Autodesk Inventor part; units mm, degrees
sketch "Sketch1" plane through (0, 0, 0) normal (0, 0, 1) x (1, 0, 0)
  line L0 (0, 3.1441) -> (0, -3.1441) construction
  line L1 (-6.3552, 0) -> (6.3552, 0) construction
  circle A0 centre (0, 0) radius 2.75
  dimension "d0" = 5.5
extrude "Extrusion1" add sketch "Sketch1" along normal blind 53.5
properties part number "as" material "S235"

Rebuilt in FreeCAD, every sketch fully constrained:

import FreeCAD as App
import Part
import Sketcher

V = App.Vector

doc = App.newDocument("Part")
body = doc.addObject("PartDesign::Body", "Body")

# Sketch on XY plane
sketch1 = body.newObject("Sketcher::SketchObject", "Sketch")
sketch1.AttachmentSupport = (doc.getObject("XY_Plane"), [""])
sketch1.MapMode = "FlatFace"
sketch1.addGeometry(Part.Circle(V(0, 0, 0), V(0, 0, 1), 2.8), False)
sketch1.addConstraint([
    Sketcher.Constraint("Coincident", 0, 3, -1, 1),
    Sketcher.Constraint("Diameter", 0, 5.5),
])
pad1 = body.newObject("PartDesign::Pad", "Pad")
pad1.Profile = sketch1
pad1.Length = 53.5

doc.recompute()
